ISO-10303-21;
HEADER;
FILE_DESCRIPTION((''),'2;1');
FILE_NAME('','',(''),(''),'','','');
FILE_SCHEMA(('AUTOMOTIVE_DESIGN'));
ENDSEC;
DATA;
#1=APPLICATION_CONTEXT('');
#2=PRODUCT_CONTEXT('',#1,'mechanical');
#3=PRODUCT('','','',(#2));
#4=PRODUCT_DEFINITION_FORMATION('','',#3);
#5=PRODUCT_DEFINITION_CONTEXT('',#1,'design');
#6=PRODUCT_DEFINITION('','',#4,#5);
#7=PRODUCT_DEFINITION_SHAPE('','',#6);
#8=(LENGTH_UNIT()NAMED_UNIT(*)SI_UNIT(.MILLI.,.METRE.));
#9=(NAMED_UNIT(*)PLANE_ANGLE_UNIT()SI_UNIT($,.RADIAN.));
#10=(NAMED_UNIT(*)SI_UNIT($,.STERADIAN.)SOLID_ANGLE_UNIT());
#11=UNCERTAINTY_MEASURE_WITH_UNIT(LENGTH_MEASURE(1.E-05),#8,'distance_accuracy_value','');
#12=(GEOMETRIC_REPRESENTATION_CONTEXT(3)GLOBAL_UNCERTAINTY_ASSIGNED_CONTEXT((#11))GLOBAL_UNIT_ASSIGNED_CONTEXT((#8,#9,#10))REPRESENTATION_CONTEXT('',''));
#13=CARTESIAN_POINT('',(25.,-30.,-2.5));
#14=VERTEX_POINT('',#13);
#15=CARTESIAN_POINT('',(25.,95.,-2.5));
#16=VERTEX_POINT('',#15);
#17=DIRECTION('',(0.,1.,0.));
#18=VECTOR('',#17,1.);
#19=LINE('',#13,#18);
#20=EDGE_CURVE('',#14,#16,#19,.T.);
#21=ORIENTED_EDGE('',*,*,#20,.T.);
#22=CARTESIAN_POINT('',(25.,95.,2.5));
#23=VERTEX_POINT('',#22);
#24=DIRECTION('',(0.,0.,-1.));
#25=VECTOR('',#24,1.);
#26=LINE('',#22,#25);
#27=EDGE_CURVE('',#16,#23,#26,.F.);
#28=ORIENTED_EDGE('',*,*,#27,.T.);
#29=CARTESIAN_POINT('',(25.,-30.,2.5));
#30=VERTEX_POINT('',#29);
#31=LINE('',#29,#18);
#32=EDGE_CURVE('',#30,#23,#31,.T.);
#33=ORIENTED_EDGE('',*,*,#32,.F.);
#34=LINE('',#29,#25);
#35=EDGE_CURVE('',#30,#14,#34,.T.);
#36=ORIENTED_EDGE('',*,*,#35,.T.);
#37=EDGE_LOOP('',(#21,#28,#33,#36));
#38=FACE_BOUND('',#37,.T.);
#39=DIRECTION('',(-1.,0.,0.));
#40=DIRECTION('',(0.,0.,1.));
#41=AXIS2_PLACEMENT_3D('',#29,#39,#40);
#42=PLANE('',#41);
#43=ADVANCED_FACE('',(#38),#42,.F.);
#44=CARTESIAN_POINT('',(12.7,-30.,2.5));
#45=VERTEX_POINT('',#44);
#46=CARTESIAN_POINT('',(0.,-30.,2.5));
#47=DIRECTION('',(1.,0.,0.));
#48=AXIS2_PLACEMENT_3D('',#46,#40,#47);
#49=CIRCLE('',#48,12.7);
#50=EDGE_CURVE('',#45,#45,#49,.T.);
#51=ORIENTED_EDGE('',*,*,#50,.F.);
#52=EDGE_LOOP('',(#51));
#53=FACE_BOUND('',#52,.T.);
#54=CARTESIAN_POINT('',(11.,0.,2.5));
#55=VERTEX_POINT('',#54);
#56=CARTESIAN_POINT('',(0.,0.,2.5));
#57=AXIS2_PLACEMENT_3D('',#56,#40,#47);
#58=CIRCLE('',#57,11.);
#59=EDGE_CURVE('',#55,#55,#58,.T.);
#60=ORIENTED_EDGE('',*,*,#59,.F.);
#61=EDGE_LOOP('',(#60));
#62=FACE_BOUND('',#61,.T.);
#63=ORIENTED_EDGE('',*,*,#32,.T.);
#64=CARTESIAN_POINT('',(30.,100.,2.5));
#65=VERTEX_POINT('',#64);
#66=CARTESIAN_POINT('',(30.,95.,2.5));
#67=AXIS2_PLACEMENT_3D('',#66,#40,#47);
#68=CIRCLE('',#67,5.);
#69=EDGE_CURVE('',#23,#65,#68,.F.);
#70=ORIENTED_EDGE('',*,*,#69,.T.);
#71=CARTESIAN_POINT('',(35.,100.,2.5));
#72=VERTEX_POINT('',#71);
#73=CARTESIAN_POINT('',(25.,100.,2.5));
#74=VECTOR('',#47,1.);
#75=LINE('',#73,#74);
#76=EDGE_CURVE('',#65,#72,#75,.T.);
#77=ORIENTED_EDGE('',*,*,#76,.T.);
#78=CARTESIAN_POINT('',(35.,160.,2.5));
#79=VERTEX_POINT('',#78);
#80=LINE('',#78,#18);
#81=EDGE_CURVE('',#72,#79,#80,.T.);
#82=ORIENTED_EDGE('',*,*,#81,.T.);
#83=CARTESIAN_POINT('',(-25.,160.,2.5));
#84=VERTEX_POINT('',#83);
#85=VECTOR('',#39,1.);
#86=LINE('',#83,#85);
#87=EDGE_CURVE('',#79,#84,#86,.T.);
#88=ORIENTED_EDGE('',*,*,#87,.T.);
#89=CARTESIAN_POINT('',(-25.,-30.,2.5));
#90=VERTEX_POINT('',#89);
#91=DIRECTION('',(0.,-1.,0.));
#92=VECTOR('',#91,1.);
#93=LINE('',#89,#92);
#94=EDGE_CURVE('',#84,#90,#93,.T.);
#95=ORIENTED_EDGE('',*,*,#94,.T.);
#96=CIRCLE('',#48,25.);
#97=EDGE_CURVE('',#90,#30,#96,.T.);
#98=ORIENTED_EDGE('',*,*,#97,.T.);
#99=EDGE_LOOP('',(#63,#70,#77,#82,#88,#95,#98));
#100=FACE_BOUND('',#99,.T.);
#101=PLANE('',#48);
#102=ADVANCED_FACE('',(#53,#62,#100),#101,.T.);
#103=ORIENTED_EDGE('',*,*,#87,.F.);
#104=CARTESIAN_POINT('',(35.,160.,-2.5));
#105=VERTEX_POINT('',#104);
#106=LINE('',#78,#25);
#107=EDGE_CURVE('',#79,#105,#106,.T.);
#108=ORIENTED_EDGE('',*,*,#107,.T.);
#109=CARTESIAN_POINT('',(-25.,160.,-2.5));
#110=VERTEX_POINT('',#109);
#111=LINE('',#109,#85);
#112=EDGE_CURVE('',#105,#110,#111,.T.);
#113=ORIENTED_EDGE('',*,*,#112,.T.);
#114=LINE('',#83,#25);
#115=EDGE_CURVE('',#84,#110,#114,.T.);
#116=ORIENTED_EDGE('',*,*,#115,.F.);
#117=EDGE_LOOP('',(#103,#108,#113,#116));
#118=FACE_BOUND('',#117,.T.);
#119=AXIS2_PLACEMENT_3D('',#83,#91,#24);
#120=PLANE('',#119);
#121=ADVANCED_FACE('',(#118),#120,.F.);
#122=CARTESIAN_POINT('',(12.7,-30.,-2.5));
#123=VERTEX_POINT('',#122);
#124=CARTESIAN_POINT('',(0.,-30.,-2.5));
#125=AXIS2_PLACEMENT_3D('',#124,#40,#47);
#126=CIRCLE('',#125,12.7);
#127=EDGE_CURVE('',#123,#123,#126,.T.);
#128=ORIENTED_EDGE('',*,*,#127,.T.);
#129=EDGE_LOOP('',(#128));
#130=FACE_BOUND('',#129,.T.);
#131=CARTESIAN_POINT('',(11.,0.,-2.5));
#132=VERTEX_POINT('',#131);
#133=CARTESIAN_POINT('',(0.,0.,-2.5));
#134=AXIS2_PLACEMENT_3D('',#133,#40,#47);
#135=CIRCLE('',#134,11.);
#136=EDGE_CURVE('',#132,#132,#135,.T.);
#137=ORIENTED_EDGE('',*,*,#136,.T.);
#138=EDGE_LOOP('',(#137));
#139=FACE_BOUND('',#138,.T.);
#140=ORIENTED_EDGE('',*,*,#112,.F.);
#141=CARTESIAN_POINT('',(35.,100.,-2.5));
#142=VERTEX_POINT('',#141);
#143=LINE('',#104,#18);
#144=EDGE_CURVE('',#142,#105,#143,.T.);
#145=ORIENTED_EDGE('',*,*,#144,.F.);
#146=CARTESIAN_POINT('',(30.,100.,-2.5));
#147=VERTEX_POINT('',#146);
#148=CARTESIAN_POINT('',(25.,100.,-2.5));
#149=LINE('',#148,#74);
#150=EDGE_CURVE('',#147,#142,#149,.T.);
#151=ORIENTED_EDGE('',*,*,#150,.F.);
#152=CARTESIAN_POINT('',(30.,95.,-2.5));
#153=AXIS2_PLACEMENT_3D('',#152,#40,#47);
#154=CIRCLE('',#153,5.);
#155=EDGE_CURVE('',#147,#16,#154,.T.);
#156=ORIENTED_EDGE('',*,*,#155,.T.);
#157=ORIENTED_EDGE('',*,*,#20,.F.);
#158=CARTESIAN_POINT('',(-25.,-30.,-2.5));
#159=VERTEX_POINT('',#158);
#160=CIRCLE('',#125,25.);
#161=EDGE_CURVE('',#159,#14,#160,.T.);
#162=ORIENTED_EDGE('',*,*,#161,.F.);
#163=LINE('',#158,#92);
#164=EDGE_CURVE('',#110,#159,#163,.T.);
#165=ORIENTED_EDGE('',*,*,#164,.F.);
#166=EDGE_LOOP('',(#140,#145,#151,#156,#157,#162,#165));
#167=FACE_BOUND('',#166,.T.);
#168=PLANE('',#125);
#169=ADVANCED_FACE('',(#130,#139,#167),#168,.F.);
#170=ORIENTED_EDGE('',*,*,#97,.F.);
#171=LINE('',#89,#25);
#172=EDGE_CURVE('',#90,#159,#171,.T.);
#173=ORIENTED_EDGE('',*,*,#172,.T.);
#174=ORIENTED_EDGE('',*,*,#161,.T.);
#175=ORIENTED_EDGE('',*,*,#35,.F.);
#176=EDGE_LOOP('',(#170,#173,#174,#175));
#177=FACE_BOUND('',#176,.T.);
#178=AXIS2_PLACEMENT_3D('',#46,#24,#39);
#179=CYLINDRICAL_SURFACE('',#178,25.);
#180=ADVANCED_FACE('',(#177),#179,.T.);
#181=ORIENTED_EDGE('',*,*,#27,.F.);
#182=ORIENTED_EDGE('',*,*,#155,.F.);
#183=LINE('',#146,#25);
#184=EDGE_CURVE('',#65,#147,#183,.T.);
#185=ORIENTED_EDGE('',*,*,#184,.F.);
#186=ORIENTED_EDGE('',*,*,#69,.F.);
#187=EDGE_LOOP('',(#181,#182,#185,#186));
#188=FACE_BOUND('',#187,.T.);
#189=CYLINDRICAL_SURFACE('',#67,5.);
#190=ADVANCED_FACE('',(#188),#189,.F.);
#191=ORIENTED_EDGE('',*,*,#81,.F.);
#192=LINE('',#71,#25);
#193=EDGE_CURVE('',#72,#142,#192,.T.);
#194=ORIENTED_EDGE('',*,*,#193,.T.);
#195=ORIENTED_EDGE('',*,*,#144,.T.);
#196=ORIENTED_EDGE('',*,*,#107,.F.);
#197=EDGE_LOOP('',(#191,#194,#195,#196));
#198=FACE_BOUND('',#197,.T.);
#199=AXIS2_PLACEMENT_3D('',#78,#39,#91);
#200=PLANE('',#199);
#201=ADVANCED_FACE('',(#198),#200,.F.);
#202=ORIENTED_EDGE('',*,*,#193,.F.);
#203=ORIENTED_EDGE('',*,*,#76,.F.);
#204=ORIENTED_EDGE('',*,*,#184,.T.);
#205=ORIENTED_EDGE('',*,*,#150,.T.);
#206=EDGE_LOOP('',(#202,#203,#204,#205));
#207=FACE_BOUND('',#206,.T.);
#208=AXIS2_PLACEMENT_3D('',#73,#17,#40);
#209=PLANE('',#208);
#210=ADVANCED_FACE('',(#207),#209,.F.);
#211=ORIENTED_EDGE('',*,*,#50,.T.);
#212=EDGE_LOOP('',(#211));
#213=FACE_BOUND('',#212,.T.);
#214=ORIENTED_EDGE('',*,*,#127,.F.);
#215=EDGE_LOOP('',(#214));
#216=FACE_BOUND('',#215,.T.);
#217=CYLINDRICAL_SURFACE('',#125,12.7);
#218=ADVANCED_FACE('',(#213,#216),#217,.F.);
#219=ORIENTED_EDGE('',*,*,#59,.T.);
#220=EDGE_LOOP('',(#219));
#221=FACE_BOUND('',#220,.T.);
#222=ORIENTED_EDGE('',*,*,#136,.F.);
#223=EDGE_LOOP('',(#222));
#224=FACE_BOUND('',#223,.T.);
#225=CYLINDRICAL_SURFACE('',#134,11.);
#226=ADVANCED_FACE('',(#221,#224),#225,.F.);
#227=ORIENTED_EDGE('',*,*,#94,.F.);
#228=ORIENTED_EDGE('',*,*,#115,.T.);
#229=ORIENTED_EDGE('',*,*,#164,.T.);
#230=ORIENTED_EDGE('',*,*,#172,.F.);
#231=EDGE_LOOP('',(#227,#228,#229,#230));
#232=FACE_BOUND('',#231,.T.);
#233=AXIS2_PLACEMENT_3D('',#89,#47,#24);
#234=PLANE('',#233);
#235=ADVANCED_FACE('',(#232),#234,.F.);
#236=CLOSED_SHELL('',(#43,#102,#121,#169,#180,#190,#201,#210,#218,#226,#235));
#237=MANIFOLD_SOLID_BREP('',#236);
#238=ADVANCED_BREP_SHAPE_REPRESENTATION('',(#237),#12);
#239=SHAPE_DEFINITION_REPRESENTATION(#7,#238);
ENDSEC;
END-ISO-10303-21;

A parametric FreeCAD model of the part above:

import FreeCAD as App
import Part
import Sketcher
from FreeCAD import Vector


def edges_at(feature, points):
    """Names of the edges that pass closest to the given points."""
    edges = feature.Shape.Edges
    near = lambda p: min(range(len(edges)), key=lambda i: edges[i].distToShape(Part.Vertex(*p))[0])
    return sorted({f"Edge{near(p) + 1}" for p in points})

doc = App.newDocument("Part")
body = doc.addObject("PartDesign::Body", "Body")

sketch1 = body.newObject("Sketcher::SketchObject", "Sketch")
sketch1.AttachmentSupport = (doc.getObject("XY_Plane"), [""])
sketch1.MapMode = "FlatFace"
sketch1.addGeometry(Part.Circle(Vector(0, -30, 0), Vector(0, 0, 1), 25), False)
sketch1.addConstraint(Sketcher.Constraint("PointOnObject", 0, 3, -2))
sketch1.addConstraint(Sketcher.Constraint("Diameter", 0, 50.0))
sketch1.addConstraint(Sketcher.Constraint("DistanceY", 0, 3, -1, 1, 30.0))
pad1 = body.newObject("PartDesign::Pad", "Pad")
pad1.Profile = sketch1
pad1.Length = 5
pad1.Midplane = True

sketch2 = body.newObject("Sketcher::SketchObject", "Sketch001")
sketch2.AttachmentSupport = (doc.getObject("XY_Plane"), [""])
sketch2.MapMode = "FlatFace"
sketch2.addGeometry(Part.LineSegment(Vector(-25, 160, 0), Vector(-25, -30, 0)), False)
sketch2.addGeometry(Part.LineSegment(Vector(-25, -30, 0), Vector(25, -30, 0)), False)
sketch2.addGeometry(Part.LineSegment(Vector(25, -30, 0), Vector(25, 160, 0)), False)
sketch2.addGeometry(Part.LineSegment(Vector(25, 160, 0), Vector(-25, 160, 0)), False)
sketch2.addConstraint(Sketcher.Constraint("Coincident", 0, 2, 1, 1))
sketch2.addConstraint(Sketcher.Constraint("Coincident", 1, 2, 2, 1))
sketch2.addConstraint(Sketcher.Constraint("Coincident", 2, 2, 3, 1))
sketch2.addConstraint(Sketcher.Constraint("Coincident", 3, 2, 0, 1))
sketch2.addConstraint(Sketcher.Constraint("Vertical", 0))
sketch2.addConstraint(Sketcher.Constraint("Horizontal", 1))
sketch2.addConstraint(Sketcher.Constraint("Vertical", 2))
sketch2.addConstraint(Sketcher.Constraint("Horizontal", 3))
sketch2.addConstraint(Sketcher.Constraint("DistanceX", 1, 1, 1, 2, 50.0))
sketch2.addConstraint(Sketcher.Constraint("DistanceY", 0, 2, 0, 1, 190.0))
sketch2.addConstraint(Sketcher.Constraint("DistanceX", 0, 2, -1, 1, 25.0))
sketch2.addConstraint(Sketcher.Constraint("DistanceY", 0, 2, -1, 1, 30.0))
pad2 = body.newObject("PartDesign::Pad", "Pad001")
pad2.Profile = sketch2
pad2.Length = 5
pad2.Midplane = True

sketch3 = body.newObject("Sketcher::SketchObject", "Sketch002")
sketch3.AttachmentSupport = (doc.getObject("XY_Plane"), [""])
sketch3.MapMode = "FlatFace"
sketch3.addGeometry(Part.LineSegment(Vector(25, 160, 0), Vector(25, 100, 0)), False)
sketch3.addGeometry(Part.LineSegment(Vector(25, 100, 0), Vector(35, 100, 0)), False)
sketch3.addGeometry(Part.LineSegment(Vector(35, 100, 0), Vector(35, 160, 0)), False)
sketch3.addGeometry(Part.LineSegment(Vector(35, 160, 0), Vector(25, 160, 0)), False)
sketch3.addConstraint(Sketcher.Constraint("Coincident", 0, 2, 1, 1))
sketch3.addConstraint(Sketcher.Constraint("Coincident", 1, 2, 2, 1))
sketch3.addConstraint(Sketcher.Constraint("Coincident", 2, 2, 3, 1))
sketch3.addConstraint(Sketcher.Constraint("Coincident", 3, 2, 0, 1))
sketch3.addConstraint(Sketcher.Constraint("Vertical", 0))
sketch3.addConstraint(Sketcher.Constraint("Horizontal", 1))
sketch3.addConstraint(Sketcher.Constraint("Vertical", 2))
sketch3.addConstraint(Sketcher.Constraint("Horizontal", 3))
sketch3.addConstraint(Sketcher.Constraint("DistanceX", 1, 1, 1, 2, 10.0))
sketch3.addConstraint(Sketcher.Constraint("DistanceY", 0, 2, 0, 1, 60.0))
sketch3.addConstraint(Sketcher.Constraint("DistanceX", -1, 1, 0, 2, 25.0))
sketch3.addConstraint(Sketcher.Constraint("DistanceY", -1, 1, 0, 2, 100.0))
pad3 = body.newObject("PartDesign::Pad", "Pad002")
pad3.Profile = sketch3
pad3.Length = 5
pad3.Midplane = True

sketch4 = body.newObject("Sketcher::SketchObject", "Sketch003")
sketch4.AttachmentSupport = (doc.getObject("XY_Plane"), [""])
sketch4.MapMode = "FlatFace"
sketch4.addGeometry(Part.Circle(Vector(0, 0, 0), Vector(0, 0, 1), 11), False)
sketch4.addGeometry(Part.Circle(Vector(0, -30, 0), Vector(0, 0, 1), 13), False)
sketch4.addConstraint(Sketcher.Constraint("Coincident", 0, 3, -1, 1))
sketch4.addConstraint(Sketcher.Constraint("PointOnObject", 1, 3, -2))
sketch4.addConstraint(Sketcher.Constraint("Diameter", 0, 22.0))
sketch4.addConstraint(Sketcher.Constraint("Diameter", 1, 25.4))
sketch4.addConstraint(Sketcher.Constraint("DistanceY", 1, 3, -1, 1, 30.0))
pocket1 = body.newObject("PartDesign::Pocket", "Pocket")
pocket1.Profile = sketch4
pocket1.Type = "ThroughAll"
pocket1.Midplane = True
doc.recompute()

fillet = body.newObject("PartDesign::Fillet", "Fillet")
fillet.Base = (pocket1, edges_at(pocket1, [(25, 100, 0)]))
fillet.Radius = 5

doc.recompute()
